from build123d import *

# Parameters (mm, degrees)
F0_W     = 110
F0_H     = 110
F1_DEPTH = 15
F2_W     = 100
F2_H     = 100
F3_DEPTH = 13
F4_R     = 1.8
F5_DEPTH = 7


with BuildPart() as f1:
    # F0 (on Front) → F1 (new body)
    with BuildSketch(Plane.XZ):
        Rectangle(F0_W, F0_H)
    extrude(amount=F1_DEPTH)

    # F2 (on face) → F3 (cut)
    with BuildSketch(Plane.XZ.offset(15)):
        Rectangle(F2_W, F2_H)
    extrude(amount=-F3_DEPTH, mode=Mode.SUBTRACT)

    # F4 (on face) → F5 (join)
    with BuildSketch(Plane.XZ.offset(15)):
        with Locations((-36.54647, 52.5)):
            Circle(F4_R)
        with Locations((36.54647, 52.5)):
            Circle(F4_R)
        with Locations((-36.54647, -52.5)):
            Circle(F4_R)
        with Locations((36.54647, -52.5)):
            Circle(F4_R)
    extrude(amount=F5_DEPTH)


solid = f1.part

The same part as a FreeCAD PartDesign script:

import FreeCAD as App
import Part
import Sketcher
from FreeCAD import Vector


def add_polygon(sketch, points):
    """Adds a closed chain of lines whose ends are joined by coincident constraints."""
    first, n = sketch.GeometryCount, len(points)
    for a, b in zip(points, points[1:] + points[:1]):
        sketch.addGeometry(Part.LineSegment(App.Vector(*a, 0), App.Vector(*b, 0)), False)
    for i in range(n):
        sketch.addConstraint(Sketcher.Constraint("Coincident", first + i, 2, first + (i + 1) % n, 1))

doc = App.newDocument("Part")
body = doc.addObject("PartDesign::Body", "Body")

# Sketch on XZ plane
sketch1 = body.newObject("Sketcher::SketchObject", "Sketch")
sketch1.AttachmentSupport = (doc.getObject("XZ_Plane"), [""])
sketch1.MapMode = "FlatFace"
add_polygon(sketch1, [(-55, 55), (-55, -55), (55, -55), (55, 55)])  # lines 0-3
sketch1.addConstraint(Sketcher.Constraint("Vertical", 0))
sketch1.addConstraint(Sketcher.Constraint("Horizontal", 1))
sketch1.addConstraint(Sketcher.Constraint("Vertical", 2))
sketch1.addConstraint(Sketcher.Constraint("Horizontal", 3))
sketch1.addConstraint(Sketcher.Constraint("Symmetric", 0, 2, 2, 2, -1, 1))
sketch1.addConstraint(Sketcher.Constraint("Equal", 3, 0))
sketch1.addConstraint(Sketcher.Constraint("DistanceX", 1, 1, 1, 2, 110.0))
pad1 = body.newObject("PartDesign::Pad", "Pad")
pad1.Profile = sketch1
pad1.Length = 15

# Sketch on XZ plane
sketch2 = body.newObject("Sketcher::SketchObject", "Sketch001")
sketch2.AttachmentSupport = (doc.getObject("XZ_Plane"), [""])
sketch2.MapMode = "FlatFace"
sketch2.AttachmentOffset = App.Placement(Vector(0, 0, 15), App.Rotation())
add_polygon(sketch2, [(-50, 50), (-50, -50), (50, -50), (50, 50)])  # lines 0-3
sketch2.addConstraint(Sketcher.Constraint("Vertical", 0))
sketch2.addConstraint(Sketcher.Constraint("Horizontal", 1))
sketch2.addConstraint(Sketcher.Constraint("Vertical", 2))
sketch2.addConstraint(Sketcher.Constraint("Horizontal", 3))
sketch2.addConstraint(Sketcher.Constraint("Symmetric", 0, 2, 2, 2, -1, 1))
sketch2.addConstraint(Sketcher.Constraint("Equal", 3, 0))
sketch2.addConstraint(Sketcher.Constraint("DistanceX", 1, 1, 1, 2, 100.0))
pocket1 = body.newObject("PartDesign::Pocket", "Pocket")
pocket1.Profile = sketch2
pocket1.Length = 13

# Sketch on XZ plane
sketch3 = body.newObject("Sketcher::SketchObject", "Sketch002")
sketch3.AttachmentSupport = (doc.getObject("XZ_Plane"), [""])
sketch3.MapMode = "FlatFace"
sketch3.AttachmentOffset = App.Placement(Vector(0, 0, 15), App.Rotation())
sketch3.addGeometry(Part.Circle(Vector(-36.5, 52.5, 0), Vector(0, 0, 1), 1.8), False)
sketch3.addGeometry(Part.Circle(Vector(36.5, 52.5, 0), Vector(0, 0, 1), 1.8), False)
sketch3.addGeometry(Part.Circle(Vector(-36.5, -52.5, 0), Vector(0, 0, 1), 1.8), False)
sketch3.addGeometry(Part.Circle(Vector(36.5, -52.5, 0), Vector(0, 0, 1), 1.8), False)
sketch3.addConstraint(Sketcher.Constraint("Equal", 0, 1))
sketch3.addConstraint(Sketcher.Constraint("Equal", 1, 2))
sketch3.addConstraint(Sketcher.Constraint("Equal", 2, 3))
sketch3.addConstraint(Sketcher.Constraint("Symmetric", 1, 3, 2, 3, -1, 1))
sketch3.addConstraint(Sketcher.Constraint("Symmetric", 0, 3, 3, 3, -1, 1))
sketch3.addConstraint(Sketcher.Constraint("Symmetric", 0, 3, 1, 3, -2))
sketch3.addConstraint(Sketcher.Constraint("Diameter", 0, 3.6))
sketch3.addConstraint(Sketcher.Constraint("DistanceY", 2, 3, 0, 3, 105.0))
sketch3.addConstraint(Sketcher.Constraint("DistanceX", 0, 3, -1, 1, 36.54647))
pad2 = body.newObject("PartDesign::Pad", "Pad001")
pad2.Profile = sketch3
pad2.Length = 7

doc.recompute()
